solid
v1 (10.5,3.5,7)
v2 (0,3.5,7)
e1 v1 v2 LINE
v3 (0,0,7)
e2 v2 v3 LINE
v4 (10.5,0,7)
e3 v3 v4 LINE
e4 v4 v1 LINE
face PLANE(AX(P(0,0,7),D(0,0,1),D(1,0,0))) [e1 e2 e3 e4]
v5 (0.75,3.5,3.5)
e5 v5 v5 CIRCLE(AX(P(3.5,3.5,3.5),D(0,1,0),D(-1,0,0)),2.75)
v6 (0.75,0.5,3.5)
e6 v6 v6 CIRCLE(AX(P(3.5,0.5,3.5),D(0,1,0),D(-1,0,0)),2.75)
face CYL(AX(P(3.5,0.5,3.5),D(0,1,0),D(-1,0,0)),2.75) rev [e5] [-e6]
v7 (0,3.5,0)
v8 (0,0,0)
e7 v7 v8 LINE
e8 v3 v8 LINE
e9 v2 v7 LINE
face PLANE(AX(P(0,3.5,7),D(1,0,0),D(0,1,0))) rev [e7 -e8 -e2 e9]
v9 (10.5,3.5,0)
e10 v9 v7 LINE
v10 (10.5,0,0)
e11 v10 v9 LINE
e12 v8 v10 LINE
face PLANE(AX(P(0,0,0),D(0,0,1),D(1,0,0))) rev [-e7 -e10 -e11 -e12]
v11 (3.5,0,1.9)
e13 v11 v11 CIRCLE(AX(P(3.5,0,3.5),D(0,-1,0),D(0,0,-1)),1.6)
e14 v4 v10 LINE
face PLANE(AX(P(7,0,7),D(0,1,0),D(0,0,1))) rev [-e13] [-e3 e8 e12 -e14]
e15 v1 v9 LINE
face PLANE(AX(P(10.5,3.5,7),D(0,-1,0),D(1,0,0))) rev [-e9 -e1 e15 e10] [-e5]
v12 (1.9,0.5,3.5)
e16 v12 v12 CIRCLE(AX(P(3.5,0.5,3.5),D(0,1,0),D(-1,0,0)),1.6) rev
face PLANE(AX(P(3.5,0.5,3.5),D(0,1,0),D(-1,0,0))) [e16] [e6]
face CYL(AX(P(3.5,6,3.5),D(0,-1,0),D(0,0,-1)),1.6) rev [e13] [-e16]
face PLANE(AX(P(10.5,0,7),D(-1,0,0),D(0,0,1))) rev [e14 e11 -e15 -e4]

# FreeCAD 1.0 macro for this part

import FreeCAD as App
import Part
import Sketcher

V = App.Vector
Q = App.Units.Quantity

doc = App.newDocument("Part")
params = doc.addObject("Spreadsheet::Sheet", "Params")
for row, (alias, value) in enumerate([
    ("sketch1_width", "10.5 mm"),
    ("sketch1_height", "3.5 mm"),
    ("pad1_length", "7 mm"),
    ("sketch2_diameter", "3.2 mm"),
    ("pocket1_length", "6 mm"),
    ("sketch3_diameter", "5.5 mm"),
    ("pocket2_length", "3 mm"),
], start=1):
    params.set(f"A{row}", alias)
    params.set(f"B{row}", "=" + value)
    params.setAlias(f"B{row}", alias)

body = doc.addObject("PartDesign::Body", "Body")

# Sketch on XY plane
sketch1 = body.newObject("Sketcher::SketchObject", "Sketch")
sketch1.AttachmentSupport = (doc.getObject("XY_Plane"), [""])
sketch1.MapMode = "FlatFace"
sketch1.addGeometry([
    Part.LineSegment(V(0, 0, 0), V(10.5, 0, 0)),
    Part.LineSegment(V(10.5, 0, 0), V(10.5, 3.5, 0)),
    Part.LineSegment(V(10.5, 3.5, 0), V(0, 3.5, 0)),
    Part.LineSegment(V(0, 3.5, 0), V(0, 0, 0)),
], False)
sketch1.addConstraint([
    Sketcher.Constraint("Coincident", 0, 2, 1, 1),
    Sketcher.Constraint("Coincident", 1, 2, 2, 1),
    Sketcher.Constraint("Coincident", 2, 2, 3, 1),
    Sketcher.Constraint("Coincident", 3, 2, 0, 1),
    Sketcher.Constraint("Horizontal", 0),
    Sketcher.Constraint("Vertical", 1),
    Sketcher.Constraint("Horizontal", 2),
    Sketcher.Constraint("Vertical", 3),
    Sketcher.Constraint("Coincident", 3, 2, -1, 1),
    Sketcher.Constraint("DistanceX", 0, 1, 0, 2, Q("10.5 mm")),
    Sketcher.Constraint("DistanceY", 1, 1, 1, 2, Q("3.5 mm")),
])
sketch1.setExpression("Constraints[9]", "Params.sketch1_width")
sketch1.setExpression("Constraints[10]", "Params.sketch1_height")
pad1 = body.newObject("PartDesign::Pad", "Pad")
pad1.Profile = sketch1
pad1.setExpression("Length", "Params.pad1_length")

# Sketch on XZ plane
sketch2 = body.newObject("Sketcher::SketchObject", "Sketch001")
sketch2.AttachmentSupport = (doc.getObject("XZ_Plane"), [""])
sketch2.MapMode = "FlatFace"
sketch2.addGeometry(Part.Circle(V(3.5, 3.5, 0), V(0, 0, 1), 1.6), False)
sketch2.addConstraint([
    Sketcher.Constraint("Diameter", 0, Q("3.2 mm")),
    Sketcher.Constraint("DistanceX", -1, 1, 0, 3, Q("3.5 mm")),
    Sketcher.Constraint("DistanceY", -1, 1, 0, 3, Q("3.5 mm")),
])
sketch2.setExpression("Constraints[0]", "Params.sketch2_diameter")
pocket1 = body.newObject("PartDesign::Pocket", "Pocket")
pocket1.Profile = sketch2
pocket1.setExpression("Length", "Params.pocket1_length")

# Sketch on XZ plane
sketch3 = body.newObject("Sketcher::SketchObject", "Sketch002")
sketch3.AttachmentSupport = (doc.getObject("XZ_Plane"), [""])
sketch3.MapMode = "FlatFace"
sketch3.AttachmentOffset = App.Placement(V(0, 0, -3.5), App.Rotation())
sketch3.addGeometry(Part.Circle(V(3.5, 3.5, 0), V(0, 0, 1), 2.75), False)
sketch3.addConstraint([
    Sketcher.Constraint("Diameter", 0, Q("5.5 mm")),
    Sketcher.Constraint("DistanceX", -1, 1, 0, 3, Q("3.5 mm")),
    Sketcher.Constraint("DistanceY", -1, 1, 0, 3, Q("3.5 mm")),
])
sketch3.setExpression("Constraints[0]", "Params.sketch3_diameter")
pocket2 = body.newObject("PartDesign::Pocket", "Pocket001")
pocket2.Profile = sketch3
pocket2.setExpression("Length", "Params.pocket2_length")
pocket2.Reversed = True

doc.recompute()
